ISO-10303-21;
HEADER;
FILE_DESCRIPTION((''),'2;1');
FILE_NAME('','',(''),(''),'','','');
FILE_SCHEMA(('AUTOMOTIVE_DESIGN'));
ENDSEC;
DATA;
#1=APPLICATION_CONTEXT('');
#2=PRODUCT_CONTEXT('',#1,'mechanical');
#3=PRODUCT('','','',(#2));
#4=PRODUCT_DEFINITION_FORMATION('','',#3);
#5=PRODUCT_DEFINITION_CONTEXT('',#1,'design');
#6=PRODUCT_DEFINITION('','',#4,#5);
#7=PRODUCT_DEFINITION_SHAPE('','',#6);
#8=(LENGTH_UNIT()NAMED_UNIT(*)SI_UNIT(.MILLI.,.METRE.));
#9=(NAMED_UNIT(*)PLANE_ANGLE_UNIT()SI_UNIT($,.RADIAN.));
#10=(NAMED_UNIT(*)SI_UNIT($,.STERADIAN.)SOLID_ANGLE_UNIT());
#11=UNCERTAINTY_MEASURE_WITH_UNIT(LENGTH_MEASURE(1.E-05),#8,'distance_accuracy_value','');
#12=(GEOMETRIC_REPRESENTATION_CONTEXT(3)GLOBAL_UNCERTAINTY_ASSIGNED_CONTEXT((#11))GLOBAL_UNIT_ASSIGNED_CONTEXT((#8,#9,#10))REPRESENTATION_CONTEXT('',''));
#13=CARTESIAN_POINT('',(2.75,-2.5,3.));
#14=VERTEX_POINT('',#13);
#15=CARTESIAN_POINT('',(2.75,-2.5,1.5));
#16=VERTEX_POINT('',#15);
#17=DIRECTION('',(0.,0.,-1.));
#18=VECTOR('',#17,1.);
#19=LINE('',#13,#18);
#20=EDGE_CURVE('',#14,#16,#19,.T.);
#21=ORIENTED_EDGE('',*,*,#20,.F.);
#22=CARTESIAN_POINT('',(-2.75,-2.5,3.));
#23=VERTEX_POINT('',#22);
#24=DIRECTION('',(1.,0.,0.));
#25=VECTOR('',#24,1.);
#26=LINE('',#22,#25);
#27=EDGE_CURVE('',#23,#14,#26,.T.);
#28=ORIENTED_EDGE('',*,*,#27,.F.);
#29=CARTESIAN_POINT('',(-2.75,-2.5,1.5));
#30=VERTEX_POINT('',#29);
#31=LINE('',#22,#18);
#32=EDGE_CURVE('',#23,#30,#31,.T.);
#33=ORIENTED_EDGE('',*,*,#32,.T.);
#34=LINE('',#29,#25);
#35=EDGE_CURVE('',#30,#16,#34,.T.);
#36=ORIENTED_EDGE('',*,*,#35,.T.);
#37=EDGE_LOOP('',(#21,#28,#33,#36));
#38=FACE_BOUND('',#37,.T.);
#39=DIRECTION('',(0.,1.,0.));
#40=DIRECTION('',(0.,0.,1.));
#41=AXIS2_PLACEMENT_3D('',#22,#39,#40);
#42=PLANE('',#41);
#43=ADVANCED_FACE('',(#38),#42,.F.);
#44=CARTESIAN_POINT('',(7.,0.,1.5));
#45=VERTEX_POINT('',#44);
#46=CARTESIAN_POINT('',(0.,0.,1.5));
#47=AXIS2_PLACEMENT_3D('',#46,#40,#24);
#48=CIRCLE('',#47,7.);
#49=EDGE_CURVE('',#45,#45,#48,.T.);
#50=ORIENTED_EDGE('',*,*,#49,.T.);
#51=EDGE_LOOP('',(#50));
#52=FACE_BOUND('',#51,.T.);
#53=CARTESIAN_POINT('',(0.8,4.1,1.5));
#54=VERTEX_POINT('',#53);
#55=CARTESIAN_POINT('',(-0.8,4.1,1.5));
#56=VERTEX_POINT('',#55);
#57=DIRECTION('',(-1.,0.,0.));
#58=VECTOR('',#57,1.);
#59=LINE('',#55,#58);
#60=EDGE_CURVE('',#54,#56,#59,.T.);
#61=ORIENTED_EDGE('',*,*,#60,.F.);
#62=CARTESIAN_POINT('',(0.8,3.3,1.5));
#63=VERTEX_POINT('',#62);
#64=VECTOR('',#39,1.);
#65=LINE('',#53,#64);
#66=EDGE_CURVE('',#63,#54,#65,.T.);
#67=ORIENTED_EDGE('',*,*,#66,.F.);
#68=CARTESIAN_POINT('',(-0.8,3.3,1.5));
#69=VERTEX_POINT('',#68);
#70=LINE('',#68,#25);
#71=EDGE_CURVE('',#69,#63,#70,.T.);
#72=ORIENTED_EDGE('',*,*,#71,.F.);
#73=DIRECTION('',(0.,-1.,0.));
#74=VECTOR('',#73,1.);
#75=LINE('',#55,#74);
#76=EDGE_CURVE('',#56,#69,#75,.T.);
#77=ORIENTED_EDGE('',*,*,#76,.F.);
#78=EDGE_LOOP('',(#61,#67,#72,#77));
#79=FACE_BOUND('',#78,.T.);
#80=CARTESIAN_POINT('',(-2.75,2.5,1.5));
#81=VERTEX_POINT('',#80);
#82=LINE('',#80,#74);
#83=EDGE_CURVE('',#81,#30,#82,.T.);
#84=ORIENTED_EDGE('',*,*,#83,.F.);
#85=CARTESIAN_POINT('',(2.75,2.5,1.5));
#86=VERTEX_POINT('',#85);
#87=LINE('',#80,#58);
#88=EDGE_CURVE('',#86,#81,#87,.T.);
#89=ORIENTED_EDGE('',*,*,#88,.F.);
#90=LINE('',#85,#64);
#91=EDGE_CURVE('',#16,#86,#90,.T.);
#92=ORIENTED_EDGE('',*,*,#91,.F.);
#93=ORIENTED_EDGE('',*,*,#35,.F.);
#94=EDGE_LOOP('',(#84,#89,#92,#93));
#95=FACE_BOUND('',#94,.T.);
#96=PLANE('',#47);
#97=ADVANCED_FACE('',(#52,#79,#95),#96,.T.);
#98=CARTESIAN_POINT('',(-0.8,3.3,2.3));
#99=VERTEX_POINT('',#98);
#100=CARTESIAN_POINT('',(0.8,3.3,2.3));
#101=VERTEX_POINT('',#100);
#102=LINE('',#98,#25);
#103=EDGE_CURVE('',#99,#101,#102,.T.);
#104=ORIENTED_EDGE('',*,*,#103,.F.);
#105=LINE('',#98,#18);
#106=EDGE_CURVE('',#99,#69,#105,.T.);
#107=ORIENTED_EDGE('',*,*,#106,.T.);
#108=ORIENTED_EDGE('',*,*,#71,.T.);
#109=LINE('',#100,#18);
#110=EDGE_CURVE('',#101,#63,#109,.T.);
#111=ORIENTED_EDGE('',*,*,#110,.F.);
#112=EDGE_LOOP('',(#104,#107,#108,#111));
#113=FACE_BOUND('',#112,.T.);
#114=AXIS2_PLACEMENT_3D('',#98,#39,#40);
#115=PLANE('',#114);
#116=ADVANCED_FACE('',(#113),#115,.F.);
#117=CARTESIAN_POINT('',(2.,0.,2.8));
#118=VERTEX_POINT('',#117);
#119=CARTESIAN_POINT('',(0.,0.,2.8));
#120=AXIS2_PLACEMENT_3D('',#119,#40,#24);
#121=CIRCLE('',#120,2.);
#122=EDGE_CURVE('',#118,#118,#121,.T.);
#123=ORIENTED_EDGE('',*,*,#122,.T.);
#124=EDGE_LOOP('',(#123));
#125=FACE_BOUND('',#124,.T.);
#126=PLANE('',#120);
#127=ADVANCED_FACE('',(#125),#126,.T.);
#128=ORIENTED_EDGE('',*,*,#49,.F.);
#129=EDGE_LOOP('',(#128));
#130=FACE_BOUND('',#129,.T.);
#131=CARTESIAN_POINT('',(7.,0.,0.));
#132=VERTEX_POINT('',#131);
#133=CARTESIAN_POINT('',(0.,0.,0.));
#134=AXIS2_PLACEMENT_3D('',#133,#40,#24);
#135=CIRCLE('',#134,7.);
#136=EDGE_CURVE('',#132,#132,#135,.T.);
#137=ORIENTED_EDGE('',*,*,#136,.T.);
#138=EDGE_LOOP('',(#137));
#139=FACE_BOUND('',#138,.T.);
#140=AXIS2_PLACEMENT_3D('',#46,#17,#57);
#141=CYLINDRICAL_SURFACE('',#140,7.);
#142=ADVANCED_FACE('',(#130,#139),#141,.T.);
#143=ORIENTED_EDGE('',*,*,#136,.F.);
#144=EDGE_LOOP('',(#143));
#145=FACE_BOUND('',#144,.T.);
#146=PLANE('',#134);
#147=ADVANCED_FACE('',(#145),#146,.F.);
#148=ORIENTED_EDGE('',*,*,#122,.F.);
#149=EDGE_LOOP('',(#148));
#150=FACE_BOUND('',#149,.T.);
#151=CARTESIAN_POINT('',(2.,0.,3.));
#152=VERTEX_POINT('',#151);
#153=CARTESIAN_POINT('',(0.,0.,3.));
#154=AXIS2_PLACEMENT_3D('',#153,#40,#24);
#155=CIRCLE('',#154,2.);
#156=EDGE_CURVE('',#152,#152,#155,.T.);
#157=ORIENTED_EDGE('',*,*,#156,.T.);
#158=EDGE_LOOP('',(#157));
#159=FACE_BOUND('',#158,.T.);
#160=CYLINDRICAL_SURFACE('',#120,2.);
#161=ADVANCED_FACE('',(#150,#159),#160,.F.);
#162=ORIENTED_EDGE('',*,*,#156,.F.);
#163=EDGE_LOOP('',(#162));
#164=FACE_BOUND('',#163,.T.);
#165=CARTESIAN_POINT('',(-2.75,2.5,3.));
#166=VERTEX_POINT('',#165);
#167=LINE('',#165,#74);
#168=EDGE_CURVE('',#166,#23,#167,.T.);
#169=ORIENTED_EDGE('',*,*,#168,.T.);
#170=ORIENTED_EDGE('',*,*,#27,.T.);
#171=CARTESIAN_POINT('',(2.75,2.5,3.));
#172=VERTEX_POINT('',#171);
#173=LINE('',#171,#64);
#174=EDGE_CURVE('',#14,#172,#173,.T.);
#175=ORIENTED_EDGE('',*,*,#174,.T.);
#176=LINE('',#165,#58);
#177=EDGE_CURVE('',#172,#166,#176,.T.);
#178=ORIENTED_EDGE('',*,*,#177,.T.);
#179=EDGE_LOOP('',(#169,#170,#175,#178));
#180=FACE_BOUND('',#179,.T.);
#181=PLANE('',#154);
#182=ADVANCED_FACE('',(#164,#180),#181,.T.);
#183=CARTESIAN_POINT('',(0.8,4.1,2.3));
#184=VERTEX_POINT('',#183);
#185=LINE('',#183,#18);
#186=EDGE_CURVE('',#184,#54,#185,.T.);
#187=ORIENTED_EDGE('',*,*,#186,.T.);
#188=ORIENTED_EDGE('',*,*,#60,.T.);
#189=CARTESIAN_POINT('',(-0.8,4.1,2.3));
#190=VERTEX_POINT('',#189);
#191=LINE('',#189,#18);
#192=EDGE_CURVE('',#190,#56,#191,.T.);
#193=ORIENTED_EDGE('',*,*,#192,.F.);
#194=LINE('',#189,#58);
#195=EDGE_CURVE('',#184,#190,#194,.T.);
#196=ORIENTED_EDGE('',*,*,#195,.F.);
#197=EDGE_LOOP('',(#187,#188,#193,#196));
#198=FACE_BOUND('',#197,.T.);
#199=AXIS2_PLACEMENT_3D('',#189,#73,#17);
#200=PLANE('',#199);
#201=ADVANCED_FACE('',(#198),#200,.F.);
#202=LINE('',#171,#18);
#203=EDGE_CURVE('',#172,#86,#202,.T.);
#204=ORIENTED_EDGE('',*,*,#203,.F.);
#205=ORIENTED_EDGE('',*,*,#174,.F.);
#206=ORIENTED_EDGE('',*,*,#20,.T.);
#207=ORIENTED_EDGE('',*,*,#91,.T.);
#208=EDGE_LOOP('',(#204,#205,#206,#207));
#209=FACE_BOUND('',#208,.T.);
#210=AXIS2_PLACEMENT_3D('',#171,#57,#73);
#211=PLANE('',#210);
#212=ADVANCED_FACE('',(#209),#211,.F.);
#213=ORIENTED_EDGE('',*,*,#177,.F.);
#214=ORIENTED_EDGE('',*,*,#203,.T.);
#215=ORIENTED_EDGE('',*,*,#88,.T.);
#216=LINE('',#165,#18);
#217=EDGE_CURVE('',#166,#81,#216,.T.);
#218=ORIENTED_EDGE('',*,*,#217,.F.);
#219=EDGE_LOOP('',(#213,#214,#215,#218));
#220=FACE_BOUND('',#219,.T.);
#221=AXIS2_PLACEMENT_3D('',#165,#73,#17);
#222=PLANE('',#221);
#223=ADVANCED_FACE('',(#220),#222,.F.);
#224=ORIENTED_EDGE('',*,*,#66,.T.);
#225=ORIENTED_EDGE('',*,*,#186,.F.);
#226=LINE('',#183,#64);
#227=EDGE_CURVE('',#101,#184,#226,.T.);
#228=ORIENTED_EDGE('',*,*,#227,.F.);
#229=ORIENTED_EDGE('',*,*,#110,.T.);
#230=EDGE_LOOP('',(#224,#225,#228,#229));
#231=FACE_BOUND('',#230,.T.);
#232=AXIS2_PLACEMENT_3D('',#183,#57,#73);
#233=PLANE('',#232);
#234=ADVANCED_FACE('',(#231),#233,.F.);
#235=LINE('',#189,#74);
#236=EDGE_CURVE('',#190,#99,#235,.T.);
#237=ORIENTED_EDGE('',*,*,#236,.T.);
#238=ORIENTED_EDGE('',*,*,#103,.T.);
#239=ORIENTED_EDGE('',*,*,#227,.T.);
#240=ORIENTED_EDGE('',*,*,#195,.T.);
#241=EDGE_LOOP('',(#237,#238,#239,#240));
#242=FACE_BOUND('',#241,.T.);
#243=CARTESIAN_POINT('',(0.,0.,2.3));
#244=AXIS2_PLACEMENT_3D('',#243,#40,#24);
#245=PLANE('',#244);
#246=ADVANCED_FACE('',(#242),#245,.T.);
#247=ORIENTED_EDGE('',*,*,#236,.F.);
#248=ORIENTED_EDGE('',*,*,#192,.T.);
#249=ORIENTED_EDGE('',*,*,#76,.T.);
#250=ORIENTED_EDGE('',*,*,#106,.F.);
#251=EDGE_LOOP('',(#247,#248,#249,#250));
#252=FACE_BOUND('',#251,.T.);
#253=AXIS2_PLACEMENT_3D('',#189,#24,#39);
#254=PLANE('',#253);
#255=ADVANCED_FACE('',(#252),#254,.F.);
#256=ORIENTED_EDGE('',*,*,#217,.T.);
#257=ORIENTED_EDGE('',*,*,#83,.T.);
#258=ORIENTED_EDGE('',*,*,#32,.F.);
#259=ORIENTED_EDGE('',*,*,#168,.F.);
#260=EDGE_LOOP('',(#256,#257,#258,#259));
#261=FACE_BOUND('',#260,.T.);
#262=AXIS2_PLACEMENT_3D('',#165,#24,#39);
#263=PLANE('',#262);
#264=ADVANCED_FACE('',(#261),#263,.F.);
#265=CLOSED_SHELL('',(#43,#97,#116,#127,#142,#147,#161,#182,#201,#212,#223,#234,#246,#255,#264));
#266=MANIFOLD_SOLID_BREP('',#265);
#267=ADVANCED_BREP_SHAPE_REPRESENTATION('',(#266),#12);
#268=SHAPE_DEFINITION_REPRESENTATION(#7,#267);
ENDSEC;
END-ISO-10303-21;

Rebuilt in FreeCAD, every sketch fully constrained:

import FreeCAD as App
import Part
import Sketcher

V = App.Vector

doc = App.newDocument("Part")
body = doc.addObject("PartDesign::Body", "Body")

# Sketch on XY plane
sketch1 = body.newObject("Sketcher::SketchObject", "Sketch")
sketch1.AttachmentSupport = (doc.getObject("XY_Plane"), [""])
sketch1.MapMode = "FlatFace"
sketch1.addGeometry(Part.Circle(V(0, 0, 0), V(0, 0, 1), 7), False)
sketch1.addConstraint([
    Sketcher.Constraint("Coincident", 0, 3, -1, 1),
    Sketcher.Constraint("Diameter", 0, 14.0),
])
pad1 = body.newObject("PartDesign::Pad", "Pad")
pad1.Profile = sketch1
pad1.Length = 1.5

# Sketch on XY plane
sketch2 = body.newObject("Sketcher::SketchObject", "Sketch001")
sketch2.AttachmentSupport = (doc.getObject("XY_Plane"), [""])
sketch2.MapMode = "FlatFace"
sketch2.AttachmentOffset = App.Placement(V(0, 0, 1.5), App.Rotation())
sketch2.addGeometry([
    Part.LineSegment(V(-3, 2, 0), V(-3, -2, 0)),
    Part.LineSegment(V(-3, -2, 0), V(3, -2, 0)),
    Part.LineSegment(V(3, -2, 0), V(3, 2, 0)),
    Part.LineSegment(V(3, 2, 0), V(-3, 2, 0)),
], False)
sketch2.addConstraint([
    Sketcher.Constraint("Coincident", 0, 2, 1, 1),
    Sketcher.Constraint("Coincident", 1, 2, 2, 1),
    Sketcher.Constraint("Coincident", 2, 2, 3, 1),
    Sketcher.Constraint("Coincident", 3, 2, 0, 1),
    Sketcher.Constraint("Vertical", 0),
    Sketcher.Constraint("Horizontal", 1),
    Sketcher.Constraint("Vertical", 2),
    Sketcher.Constraint("Horizontal", 3),
    Sketcher.Constraint("Symmetric", 0, 2, 2, 2, -1, 1),
    Sketcher.Constraint("DistanceY", 0, 2, 0, 1, 5.0),
    Sketcher.Constraint("DistanceX", 1, 1, 1, 2, 5.5),
])
pad2 = body.newObject("PartDesign::Pad", "Pad001")
pad2.Profile = sketch2
pad2.Length = 1.5

# Sketch on XY plane
sketch3 = body.newObject("Sketcher::SketchObject", "Sketch002")
sketch3.AttachmentSupport = (doc.getObject("XY_Plane"), [""])
sketch3.MapMode = "FlatFace"
sketch3.AttachmentOffset = App.Placement(V(0, 0, 3), App.Rotation())
sketch3.addGeometry(Part.Circle(V(0, 0, 0), V(0, 0, 1), 2), False)
sketch3.addConstraint([
    Sketcher.Constraint("Coincident", 0, 3, -1, 1),
    Sketcher.Constraint("Diameter", 0, 4.0),
])
pocket1 = body.newObject("PartDesign::Pocket", "Pocket")
pocket1.Profile = sketch3
pocket1.Length = 0.2

# Sketch on XY plane
sketch4 = body.newObject("Sketcher::SketchObject", "Sketch003")
sketch4.AttachmentSupport = (doc.getObject("XY_Plane"), [""])
sketch4.MapMode = "FlatFace"
sketch4.AttachmentOffset = App.Placement(V(0, 0, 1.5), App.Rotation())
sketch4.addGeometry([
    Part.LineSegment(V(-0.8, 4.1, 0), V(-0.8, 3.3, 0)),
    Part.LineSegment(V(-0.8, 3.3, 0), V(0.8, 3.3, 0)),
    Part.LineSegment(V(0.8, 3.3, 0), V(0.8, 4.1, 0)),
    Part.LineSegment(V(0.8, 4.1, 0), V(-0.8, 4.1, 0)),
], False)
sketch4.addConstraint([
    Sketcher.Constraint("Coincident", 0, 2, 1, 1),
    Sketcher.Constraint("Coincident", 1, 2, 2, 1),
    Sketcher.Constraint("Coincident", 2, 2, 3, 1),
    Sketcher.Constraint("Coincident", 3, 2, 0, 1),
    Sketcher.Constraint("Vertical", 0),
    Sketcher.Constraint("Horizontal", 1),
    Sketcher.Constraint("Vertical", 2),
    Sketcher.Constraint("Horizontal", 3),
    Sketcher.Constraint("DistanceX", 1, 1, 1, 2, 1.6),
    Sketcher.Constraint("DistanceY", 0, 2, 0, 1, 0.8),
    Sketcher.Constraint("DistanceX", 0, 2, -1, 1, 0.8),
    Sketcher.Constraint("DistanceY", -1, 1, 0, 2, 3.3),
])
pad3 = body.newObject("PartDesign::Pad", "Pad002")
pad3.Profile = sketch4
pad3.Length = 0.8

doc.recompute()
